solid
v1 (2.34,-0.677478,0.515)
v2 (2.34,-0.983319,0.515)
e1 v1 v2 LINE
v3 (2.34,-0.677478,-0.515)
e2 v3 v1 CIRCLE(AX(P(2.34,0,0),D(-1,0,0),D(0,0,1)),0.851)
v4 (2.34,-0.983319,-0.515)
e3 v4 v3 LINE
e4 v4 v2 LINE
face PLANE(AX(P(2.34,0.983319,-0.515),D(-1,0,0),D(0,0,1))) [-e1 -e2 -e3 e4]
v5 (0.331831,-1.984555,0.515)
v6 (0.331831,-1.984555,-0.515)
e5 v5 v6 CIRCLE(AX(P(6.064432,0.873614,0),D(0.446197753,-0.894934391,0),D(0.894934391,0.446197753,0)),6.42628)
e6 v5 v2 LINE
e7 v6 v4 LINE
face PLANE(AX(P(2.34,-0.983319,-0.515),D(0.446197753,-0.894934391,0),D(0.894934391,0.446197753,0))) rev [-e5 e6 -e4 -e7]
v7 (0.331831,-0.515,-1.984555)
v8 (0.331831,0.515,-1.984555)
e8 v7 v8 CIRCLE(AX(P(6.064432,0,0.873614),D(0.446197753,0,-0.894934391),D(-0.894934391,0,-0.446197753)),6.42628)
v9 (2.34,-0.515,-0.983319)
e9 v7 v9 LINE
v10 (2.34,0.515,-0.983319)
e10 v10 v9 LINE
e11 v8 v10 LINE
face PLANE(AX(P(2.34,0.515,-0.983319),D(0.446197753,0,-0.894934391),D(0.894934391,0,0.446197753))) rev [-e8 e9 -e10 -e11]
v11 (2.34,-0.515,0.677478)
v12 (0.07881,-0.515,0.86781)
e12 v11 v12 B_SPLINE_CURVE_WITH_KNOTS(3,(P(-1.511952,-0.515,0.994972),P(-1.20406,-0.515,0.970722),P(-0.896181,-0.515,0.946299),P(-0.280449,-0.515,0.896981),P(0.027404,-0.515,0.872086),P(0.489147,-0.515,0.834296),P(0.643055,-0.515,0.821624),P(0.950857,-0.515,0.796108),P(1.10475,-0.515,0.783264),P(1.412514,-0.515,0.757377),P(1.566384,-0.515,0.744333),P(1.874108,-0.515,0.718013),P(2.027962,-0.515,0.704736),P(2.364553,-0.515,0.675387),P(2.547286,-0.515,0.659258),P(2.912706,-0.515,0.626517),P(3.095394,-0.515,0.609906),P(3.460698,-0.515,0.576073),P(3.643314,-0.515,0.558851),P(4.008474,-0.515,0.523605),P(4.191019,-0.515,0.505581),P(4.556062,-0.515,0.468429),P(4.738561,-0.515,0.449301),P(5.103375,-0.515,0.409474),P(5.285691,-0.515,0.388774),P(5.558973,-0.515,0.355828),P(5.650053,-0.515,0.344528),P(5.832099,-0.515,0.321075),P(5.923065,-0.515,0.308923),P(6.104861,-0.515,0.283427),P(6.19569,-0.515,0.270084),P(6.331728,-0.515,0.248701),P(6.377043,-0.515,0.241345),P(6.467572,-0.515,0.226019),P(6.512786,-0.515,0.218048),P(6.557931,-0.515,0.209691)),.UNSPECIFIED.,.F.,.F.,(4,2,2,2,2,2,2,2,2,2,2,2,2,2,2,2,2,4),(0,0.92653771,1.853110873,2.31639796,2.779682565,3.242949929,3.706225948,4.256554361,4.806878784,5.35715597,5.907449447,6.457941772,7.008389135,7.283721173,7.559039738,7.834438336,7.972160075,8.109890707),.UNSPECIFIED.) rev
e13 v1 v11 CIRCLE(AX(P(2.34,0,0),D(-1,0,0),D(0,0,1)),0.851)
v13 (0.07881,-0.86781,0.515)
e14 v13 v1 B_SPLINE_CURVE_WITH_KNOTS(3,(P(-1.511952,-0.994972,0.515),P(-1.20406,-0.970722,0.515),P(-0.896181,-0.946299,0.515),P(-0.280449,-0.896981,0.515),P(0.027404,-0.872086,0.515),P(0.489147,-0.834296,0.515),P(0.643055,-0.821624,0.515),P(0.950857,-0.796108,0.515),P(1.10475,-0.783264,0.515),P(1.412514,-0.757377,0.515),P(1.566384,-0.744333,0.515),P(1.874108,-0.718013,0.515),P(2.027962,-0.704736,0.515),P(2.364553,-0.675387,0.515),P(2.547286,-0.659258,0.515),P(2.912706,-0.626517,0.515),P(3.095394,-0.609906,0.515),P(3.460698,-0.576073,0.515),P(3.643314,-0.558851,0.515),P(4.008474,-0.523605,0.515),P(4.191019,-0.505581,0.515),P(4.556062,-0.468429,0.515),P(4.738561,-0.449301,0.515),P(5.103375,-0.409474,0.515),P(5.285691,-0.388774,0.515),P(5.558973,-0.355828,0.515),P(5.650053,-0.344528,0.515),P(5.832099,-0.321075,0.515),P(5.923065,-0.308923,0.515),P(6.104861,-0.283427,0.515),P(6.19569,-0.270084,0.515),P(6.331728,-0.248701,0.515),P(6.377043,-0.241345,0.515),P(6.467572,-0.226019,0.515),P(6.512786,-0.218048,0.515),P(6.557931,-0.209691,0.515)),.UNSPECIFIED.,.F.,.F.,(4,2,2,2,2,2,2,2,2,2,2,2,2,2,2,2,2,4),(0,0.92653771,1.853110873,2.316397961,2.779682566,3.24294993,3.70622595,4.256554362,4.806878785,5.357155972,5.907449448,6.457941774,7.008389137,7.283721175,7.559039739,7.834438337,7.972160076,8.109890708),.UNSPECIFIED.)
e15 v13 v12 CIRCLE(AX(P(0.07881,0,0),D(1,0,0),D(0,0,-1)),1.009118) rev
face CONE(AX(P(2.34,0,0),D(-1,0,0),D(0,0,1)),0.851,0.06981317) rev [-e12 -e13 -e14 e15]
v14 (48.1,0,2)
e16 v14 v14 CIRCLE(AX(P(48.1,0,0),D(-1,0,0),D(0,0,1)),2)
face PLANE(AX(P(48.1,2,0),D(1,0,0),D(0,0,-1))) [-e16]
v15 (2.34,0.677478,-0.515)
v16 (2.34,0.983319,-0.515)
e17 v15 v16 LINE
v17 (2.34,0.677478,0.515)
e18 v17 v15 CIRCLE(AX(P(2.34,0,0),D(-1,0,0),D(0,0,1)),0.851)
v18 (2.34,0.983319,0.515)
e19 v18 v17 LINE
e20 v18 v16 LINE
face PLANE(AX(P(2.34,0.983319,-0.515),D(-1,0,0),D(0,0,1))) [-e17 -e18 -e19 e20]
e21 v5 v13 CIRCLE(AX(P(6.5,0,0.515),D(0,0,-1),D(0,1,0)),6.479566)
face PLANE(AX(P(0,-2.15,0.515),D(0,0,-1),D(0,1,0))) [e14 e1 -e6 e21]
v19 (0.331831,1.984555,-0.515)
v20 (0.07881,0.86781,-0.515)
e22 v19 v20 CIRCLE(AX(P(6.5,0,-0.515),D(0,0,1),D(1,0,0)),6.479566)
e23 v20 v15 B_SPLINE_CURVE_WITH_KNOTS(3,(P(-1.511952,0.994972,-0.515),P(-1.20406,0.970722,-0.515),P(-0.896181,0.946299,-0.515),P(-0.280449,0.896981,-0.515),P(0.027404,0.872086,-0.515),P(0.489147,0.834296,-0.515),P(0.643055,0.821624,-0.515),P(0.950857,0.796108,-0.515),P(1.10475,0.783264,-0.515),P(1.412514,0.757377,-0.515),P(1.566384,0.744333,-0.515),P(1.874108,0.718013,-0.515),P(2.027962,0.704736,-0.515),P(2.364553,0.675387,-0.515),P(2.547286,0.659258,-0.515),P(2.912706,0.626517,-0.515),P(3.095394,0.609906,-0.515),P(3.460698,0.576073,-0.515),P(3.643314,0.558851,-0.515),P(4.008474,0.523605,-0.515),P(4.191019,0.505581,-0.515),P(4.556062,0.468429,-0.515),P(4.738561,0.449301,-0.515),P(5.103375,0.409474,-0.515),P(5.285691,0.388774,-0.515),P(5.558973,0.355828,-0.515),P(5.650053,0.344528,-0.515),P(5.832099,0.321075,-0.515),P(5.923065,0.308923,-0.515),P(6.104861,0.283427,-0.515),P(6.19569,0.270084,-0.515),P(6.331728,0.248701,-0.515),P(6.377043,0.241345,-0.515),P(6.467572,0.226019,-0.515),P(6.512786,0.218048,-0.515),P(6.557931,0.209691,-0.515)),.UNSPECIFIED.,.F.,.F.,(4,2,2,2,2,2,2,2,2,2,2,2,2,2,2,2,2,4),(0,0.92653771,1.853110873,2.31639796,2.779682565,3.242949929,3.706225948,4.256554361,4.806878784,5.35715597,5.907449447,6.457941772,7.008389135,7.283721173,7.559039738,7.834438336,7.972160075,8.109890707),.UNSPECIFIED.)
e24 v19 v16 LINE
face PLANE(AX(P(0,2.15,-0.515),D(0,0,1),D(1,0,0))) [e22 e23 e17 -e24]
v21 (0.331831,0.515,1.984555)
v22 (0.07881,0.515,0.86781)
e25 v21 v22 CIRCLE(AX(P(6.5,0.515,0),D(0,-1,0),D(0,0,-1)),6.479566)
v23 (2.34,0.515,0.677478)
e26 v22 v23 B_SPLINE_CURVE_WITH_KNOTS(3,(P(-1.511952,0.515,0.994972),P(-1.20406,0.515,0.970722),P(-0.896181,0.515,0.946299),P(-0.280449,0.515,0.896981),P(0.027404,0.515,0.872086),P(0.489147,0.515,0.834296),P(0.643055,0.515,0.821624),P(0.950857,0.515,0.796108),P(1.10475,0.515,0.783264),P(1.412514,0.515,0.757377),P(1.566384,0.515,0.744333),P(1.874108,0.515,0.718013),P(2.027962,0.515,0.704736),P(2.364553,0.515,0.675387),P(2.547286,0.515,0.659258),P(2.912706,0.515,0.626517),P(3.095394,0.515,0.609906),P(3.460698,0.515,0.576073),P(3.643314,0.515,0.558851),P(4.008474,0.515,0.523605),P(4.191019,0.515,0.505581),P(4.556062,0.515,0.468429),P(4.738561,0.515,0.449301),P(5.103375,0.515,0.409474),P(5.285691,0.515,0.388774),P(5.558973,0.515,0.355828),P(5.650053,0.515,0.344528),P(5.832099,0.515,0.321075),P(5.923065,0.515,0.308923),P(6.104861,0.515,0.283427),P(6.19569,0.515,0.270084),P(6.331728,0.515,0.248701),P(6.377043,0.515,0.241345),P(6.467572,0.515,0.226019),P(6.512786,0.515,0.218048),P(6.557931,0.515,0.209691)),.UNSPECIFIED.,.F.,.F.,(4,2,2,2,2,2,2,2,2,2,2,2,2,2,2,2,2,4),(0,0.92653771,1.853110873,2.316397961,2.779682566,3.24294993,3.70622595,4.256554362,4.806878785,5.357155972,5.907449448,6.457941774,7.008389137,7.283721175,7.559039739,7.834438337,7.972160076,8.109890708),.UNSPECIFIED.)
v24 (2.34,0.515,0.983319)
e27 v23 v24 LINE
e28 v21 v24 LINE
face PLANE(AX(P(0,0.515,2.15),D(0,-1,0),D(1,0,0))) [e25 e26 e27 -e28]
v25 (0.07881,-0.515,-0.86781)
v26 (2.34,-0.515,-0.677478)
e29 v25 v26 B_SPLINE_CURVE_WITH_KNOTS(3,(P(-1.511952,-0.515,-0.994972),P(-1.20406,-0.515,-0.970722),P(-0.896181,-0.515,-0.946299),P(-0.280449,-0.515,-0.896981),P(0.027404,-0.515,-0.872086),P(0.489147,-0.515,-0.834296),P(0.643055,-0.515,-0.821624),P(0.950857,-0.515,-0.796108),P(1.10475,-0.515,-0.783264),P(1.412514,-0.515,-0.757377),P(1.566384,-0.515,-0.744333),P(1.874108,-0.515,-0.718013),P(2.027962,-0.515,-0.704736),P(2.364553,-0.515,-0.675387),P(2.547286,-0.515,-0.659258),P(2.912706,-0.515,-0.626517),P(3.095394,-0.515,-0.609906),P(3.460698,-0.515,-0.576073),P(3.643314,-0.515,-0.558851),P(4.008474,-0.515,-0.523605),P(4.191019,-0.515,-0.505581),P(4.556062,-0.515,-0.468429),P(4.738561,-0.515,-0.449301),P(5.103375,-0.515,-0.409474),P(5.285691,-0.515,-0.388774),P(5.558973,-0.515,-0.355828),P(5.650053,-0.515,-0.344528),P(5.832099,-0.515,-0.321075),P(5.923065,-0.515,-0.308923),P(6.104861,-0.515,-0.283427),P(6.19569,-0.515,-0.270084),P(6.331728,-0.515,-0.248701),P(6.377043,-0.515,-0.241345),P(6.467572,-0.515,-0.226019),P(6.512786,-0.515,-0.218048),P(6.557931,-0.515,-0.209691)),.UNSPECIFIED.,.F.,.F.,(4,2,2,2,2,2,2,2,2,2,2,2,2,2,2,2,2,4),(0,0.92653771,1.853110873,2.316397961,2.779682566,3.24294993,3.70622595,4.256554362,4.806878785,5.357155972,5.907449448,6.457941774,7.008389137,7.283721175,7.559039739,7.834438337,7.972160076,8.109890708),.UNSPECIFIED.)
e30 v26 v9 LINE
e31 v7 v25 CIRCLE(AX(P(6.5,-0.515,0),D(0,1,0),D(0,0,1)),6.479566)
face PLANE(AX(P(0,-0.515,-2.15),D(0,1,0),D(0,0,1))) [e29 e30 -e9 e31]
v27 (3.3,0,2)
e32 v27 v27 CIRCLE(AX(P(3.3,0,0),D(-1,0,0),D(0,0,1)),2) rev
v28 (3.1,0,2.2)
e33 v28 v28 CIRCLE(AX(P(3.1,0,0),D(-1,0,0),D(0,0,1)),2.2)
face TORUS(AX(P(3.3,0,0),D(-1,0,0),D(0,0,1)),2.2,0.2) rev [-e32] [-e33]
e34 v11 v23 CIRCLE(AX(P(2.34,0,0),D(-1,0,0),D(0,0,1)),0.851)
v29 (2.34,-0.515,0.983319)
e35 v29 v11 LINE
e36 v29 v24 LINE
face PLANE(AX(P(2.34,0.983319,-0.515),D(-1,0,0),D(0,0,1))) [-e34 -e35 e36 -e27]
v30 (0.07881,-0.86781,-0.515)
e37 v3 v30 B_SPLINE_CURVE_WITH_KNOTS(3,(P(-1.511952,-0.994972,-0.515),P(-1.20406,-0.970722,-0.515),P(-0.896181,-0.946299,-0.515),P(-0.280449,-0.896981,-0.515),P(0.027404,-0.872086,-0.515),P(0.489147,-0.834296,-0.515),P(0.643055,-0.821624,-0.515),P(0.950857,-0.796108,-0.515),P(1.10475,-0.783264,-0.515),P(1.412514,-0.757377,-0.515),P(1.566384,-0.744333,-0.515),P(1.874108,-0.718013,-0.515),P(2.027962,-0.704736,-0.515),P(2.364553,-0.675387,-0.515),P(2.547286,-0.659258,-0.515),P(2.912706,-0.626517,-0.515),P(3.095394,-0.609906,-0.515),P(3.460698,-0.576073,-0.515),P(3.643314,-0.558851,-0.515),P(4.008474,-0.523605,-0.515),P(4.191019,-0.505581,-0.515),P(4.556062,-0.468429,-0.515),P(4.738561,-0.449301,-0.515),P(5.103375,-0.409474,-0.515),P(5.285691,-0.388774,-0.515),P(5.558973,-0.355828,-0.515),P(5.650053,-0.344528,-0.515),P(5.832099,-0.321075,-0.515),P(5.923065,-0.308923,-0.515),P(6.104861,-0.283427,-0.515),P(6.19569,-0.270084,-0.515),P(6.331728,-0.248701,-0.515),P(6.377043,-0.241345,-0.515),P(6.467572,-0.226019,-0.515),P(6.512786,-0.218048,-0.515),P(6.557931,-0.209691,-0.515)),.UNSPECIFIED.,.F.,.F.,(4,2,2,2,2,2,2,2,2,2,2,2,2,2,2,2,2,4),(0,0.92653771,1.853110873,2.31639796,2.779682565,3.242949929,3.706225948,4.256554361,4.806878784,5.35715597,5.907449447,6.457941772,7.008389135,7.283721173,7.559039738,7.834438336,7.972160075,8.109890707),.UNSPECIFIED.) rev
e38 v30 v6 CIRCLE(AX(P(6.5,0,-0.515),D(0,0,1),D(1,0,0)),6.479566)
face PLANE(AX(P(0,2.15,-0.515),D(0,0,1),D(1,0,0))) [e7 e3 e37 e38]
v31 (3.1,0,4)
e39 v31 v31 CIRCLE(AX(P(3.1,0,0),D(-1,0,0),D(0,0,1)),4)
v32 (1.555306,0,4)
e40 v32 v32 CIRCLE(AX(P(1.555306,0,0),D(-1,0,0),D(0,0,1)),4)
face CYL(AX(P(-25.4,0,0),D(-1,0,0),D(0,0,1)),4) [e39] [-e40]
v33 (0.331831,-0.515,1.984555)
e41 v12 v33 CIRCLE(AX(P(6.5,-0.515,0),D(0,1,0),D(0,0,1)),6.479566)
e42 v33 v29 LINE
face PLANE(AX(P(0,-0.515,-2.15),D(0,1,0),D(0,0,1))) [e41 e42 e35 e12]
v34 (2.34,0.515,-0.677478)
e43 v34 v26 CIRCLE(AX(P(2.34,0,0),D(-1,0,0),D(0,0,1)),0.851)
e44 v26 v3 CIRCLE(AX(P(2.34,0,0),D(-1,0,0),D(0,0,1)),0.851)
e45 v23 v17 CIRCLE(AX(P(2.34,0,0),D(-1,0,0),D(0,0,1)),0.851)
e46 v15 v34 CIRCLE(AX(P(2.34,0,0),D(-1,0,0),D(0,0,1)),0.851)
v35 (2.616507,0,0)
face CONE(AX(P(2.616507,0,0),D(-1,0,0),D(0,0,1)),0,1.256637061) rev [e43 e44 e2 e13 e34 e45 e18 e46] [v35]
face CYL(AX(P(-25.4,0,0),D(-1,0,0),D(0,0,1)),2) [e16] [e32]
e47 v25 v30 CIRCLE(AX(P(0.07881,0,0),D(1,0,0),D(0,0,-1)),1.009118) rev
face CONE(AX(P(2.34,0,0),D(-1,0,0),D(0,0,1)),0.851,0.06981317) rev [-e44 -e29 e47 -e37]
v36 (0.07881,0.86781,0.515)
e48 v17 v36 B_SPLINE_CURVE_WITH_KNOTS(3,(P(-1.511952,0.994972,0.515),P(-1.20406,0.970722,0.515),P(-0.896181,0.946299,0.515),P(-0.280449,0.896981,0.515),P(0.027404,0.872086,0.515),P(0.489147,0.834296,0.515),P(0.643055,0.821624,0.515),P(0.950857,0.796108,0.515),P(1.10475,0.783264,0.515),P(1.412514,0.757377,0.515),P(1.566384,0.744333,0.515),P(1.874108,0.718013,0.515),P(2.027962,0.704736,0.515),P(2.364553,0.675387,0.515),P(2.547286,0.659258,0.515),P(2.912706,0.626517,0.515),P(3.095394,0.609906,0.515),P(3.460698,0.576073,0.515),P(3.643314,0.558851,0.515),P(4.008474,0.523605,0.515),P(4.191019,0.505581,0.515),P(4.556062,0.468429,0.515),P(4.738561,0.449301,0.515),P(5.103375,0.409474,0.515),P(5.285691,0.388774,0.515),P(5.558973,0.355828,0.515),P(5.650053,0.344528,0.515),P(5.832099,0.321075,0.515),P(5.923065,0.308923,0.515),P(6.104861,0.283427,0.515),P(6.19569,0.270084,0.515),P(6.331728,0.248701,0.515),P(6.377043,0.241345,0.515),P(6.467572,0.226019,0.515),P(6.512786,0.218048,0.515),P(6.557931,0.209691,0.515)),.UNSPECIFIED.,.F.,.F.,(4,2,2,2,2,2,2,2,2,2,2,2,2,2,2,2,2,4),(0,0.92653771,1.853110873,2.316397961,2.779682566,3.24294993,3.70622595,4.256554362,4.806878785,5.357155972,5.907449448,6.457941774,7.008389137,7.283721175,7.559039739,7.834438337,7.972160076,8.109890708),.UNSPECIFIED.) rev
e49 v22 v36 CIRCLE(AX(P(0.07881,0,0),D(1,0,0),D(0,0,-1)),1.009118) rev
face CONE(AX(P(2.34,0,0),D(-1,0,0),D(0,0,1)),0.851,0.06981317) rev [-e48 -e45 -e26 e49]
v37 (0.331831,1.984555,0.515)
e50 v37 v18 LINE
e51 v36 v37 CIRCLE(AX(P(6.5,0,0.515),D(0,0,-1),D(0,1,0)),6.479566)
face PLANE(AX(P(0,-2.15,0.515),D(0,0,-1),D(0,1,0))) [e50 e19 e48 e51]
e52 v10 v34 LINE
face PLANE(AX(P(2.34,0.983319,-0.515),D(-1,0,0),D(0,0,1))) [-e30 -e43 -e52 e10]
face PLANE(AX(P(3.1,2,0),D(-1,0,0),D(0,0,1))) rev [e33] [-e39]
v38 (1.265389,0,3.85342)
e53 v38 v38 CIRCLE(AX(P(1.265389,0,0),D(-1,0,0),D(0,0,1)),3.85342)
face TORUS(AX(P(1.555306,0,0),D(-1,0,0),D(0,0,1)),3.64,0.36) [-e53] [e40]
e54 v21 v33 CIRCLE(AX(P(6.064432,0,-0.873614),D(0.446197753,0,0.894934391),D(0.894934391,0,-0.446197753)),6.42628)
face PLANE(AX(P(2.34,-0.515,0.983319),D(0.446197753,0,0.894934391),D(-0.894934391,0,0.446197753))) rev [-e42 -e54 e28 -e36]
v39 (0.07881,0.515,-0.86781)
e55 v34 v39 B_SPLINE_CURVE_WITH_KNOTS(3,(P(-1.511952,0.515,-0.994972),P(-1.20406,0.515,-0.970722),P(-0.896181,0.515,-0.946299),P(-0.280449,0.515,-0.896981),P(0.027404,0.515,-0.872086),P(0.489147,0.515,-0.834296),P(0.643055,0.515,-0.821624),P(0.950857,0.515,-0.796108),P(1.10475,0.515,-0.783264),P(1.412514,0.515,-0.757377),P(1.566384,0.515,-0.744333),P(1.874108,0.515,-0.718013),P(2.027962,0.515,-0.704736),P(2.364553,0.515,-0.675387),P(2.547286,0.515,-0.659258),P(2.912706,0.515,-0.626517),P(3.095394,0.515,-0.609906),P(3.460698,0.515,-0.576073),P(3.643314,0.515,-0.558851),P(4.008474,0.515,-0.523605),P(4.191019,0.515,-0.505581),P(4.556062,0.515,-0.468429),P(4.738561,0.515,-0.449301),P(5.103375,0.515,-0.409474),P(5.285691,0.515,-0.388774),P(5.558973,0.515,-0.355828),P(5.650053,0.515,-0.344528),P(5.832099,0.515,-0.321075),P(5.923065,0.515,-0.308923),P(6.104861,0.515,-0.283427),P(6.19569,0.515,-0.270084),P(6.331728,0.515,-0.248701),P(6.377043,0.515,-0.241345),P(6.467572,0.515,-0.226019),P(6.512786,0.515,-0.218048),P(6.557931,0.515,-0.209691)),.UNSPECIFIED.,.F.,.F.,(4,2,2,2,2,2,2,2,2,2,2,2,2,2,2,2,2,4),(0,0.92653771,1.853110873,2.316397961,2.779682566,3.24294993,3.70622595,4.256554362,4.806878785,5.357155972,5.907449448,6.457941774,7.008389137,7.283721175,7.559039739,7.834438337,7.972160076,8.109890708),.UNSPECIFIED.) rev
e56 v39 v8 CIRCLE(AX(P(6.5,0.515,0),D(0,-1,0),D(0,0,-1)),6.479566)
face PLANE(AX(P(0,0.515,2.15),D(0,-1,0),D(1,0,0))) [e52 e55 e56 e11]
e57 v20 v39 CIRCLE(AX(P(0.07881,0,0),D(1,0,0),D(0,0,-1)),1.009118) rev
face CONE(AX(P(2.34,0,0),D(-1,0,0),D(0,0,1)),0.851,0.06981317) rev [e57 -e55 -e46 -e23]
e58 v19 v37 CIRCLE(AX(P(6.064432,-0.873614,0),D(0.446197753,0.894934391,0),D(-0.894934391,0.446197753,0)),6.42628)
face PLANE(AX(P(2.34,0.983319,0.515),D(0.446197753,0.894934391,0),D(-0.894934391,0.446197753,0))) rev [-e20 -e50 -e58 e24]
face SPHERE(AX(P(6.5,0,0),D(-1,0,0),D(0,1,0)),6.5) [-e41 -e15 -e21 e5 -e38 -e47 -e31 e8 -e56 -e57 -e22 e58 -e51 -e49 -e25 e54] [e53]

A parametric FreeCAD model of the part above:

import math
import FreeCAD as App
import Part
import Sketcher

V = App.Vector
Q = App.Units.Quantity


def edges_at(feature, points):
    """Names of the edges that pass closest to the given points."""
    edges = feature.Shape.Edges
    near = lambda p: min(range(len(edges)), key=lambda i: edges[i].distToShape(Part.Vertex(*p))[0])
    return sorted({f"Edge{near(p) + 1}" for p in points})


def add_polygon(sketch, points):
    """Adds a closed chain of lines whose ends are joined by coincident constraints."""
    first, n = sketch.GeometryCount, len(points)
    for a, b in zip(points, points[1:] + points[:1]):
        sketch.addGeometry(Part.LineSegment(App.Vector(*a, 0), App.Vector(*b, 0)), False)
    for i in range(n):
        sketch.addConstraint(Sketcher.Constraint("Coincident", first + i, 2, first + (i + 1) % n, 1))

doc = App.newDocument("Part")
params = doc.addObject("Spreadsheet::Sheet", "Params")
for row, (alias, value) in enumerate([
    ("sketch1_radius", "6.5 mm"),
    ("sketch1_width", "45 mm"),
    ("sketch1_height", "2 mm"),
    ("sketch1_radius2", "0.36 mm"),
    ("sketch1_width2", "48.1 mm"),
    ("revolution_angle", "360 deg"),
    ("fillet_radius", "0.2 mm"),
    ("sketch2_width", "4.3 mm"),
    ("sketch2_height", "1.03 mm"),
    ("sketch3_height", "1.03 mm"),
    ("groove_angle", "360 deg"),
], start=1):
    params.set(f"A{row}", alias)
    params.set(f"B{row}", "=" + value)
    params.setAlias(f"B{row}", alias)

body = doc.addObject("PartDesign::Body", "Body")

sketch1 = doc.addObject("Sketcher::SketchObject", "Sketch")
body.addObject(sketch1)
sketch1.AttachmentSupport = (doc.XY_Plane, [""])
sketch1.MapMode = "FlatFace"
sketch1.addGeometry(Part.LineSegment(V(3.1, 2, 0), V(3.1, 4, 0)), False)
sketch1.addGeometry(Part.LineSegment(V(3.1, 4, 0), V(1.56, 4, 0)), False)
sketch1.addGeometry(Part.ArcOfCircle(Part.Circle(V(1.56, 3.64, 0), V(0, 0, 1), 0.36), math.radians(90), math.radians(144)), False)
sketch1.addGeometry(Part.ArcOfCircle(Part.Circle(V(6.5, 0, 0), V(0, 0, 1), 6.5), math.radians(144), math.radians(180)), False)
sketch1.addGeometry(Part.LineSegment(V(0, 0, 0), V(48.1, 0, 0)), False)
sketch1.addGeometry(Part.LineSegment(V(48.1, 0, 0), V(48.1, 2, 0)), False)
sketch1.addGeometry(Part.LineSegment(V(48.1, 2, 0), V(3.1, 2, 0)), False)
sketch1.addConstraint(Sketcher.Constraint("Coincident", 0, 2, 1, 1))
sketch1.addConstraint(Sketcher.Constraint("Tangent", 1, 2, 2, 1))
sketch1.addConstraint(Sketcher.Constraint("Tangent", 2, 2, 3, 1))
sketch1.addConstraint(Sketcher.Constraint("Coincident", 3, 2, 4, 1))
sketch1.addConstraint(Sketcher.Constraint("Coincident", 4, 2, 5, 1))
sketch1.addConstraint(Sketcher.Constraint("Coincident", 5, 2, 6, 1))
sketch1.addConstraint(Sketcher.Constraint("Coincident", 6, 2, 0, 1))
sketch1.addConstraint(Sketcher.Constraint("Vertical", 0))
sketch1.addConstraint(Sketcher.Constraint("Horizontal", 1))
sketch1.addConstraint(Sketcher.Constraint("Horizontal", 4))
sketch1.addConstraint(Sketcher.Constraint("Vertical", 5))
sketch1.addConstraint(Sketcher.Constraint("Horizontal", 6))
sketch1.addConstraint(Sketcher.Constraint("Coincident", 3, 2, -1, 1))
sketch1.addConstraint(Sketcher.Constraint("PointOnObject", 3, 3, -1))
sketch1.addConstraint(Sketcher.Constraint("Equal", 0, 5))
sketch1.addConstraint(Sketcher.Constraint("Radius", 3, 6.5))
sketch1.addConstraint(Sketcher.Constraint("DistanceX", 6, 2, 6, 1, 45.0))
sketch1.addConstraint(Sketcher.Constraint("DistanceY", 0, 1, 0, 2, 2.0))
sketch1.addConstraint(Sketcher.Constraint("Radius", 2, 0.36))
sketch1.addConstraint(Sketcher.Constraint("DistanceX", 4, 1, 4, 2, 48.1))
sketch1.setExpression("Constraints[15]", "Params.sketch1_radius")
sketch1.setExpression("Constraints[16]", "Params.sketch1_width")
sketch1.setExpression("Constraints[17]", "Params.sketch1_height")
sketch1.setExpression("Constraints[18]", "Params.sketch1_radius2")
sketch1.setExpression("Constraints[19]", "Params.sketch1_width2")
revolution = doc.addObject("PartDesign::Revolution", "Revolution")
body.addObject(revolution)
revolution.Profile = sketch1
revolution.ReferenceAxis = (sketch1, ["H_Axis"])
revolution.setExpression("Angle", "Params.revolution_angle")
doc.recompute()

fillet = doc.addObject("PartDesign::Fillet", "Fillet")
body.addObject(fillet)
fillet.Base = (revolution, edges_at(revolution, [(3.1, 0, -2)]))
fillet.setExpression("Radius", "Params.fillet_radius")

sketch2 = doc.addObject("Sketcher::SketchObject", "Sketch001")
body.addObject(sketch2)
sketch2.AttachmentSupport = (doc.YZ_Plane, [""])
sketch2.MapMode = "FlatFace"
add_polygon(sketch2, [(-2.1, 0.5), (-2.1, -0.5), (2.1, -0.5), (2.1, 0.5)])
sketch2.addConstraint(Sketcher.Constraint("Vertical", 0))
sketch2.addConstraint(Sketcher.Constraint("Horizontal", 1))
sketch2.addConstraint(Sketcher.Constraint("Vertical", 2))
sketch2.addConstraint(Sketcher.Constraint("Horizontal", 3))
sketch2.addConstraint(Sketcher.Constraint("Symmetric", 0, 2, 2, 2, -1, 1))
sketch2.addConstraint(Sketcher.Constraint("DistanceX", 1, 1, 1, 2, 4.3))
sketch2.addConstraint(Sketcher.Constraint("DistanceY", 0, 2, 0, 1, 1.03))
sketch2.setExpression("Constraints[9]", "Params.sketch2_width")
sketch2.setExpression("Constraints[10]", "Params.sketch2_height")

sketch3 = doc.addObject("Sketcher::SketchObject", "Sketch002")
body.addObject(sketch3)
sketch3.AttachmentSupport = (doc.YZ_Plane, [""])
sketch3.MapMode = "FlatFace"
sketch3.AttachmentOffset = App.Placement(V(0, 0, 2.34), App.Rotation())
add_polygon(sketch3, [(-1, 0.5), (-1, -0.5), (1, -0.5), (1, 0.5)])
sketch3.addConstraint(Sketcher.Constraint("Vertical", 0))
sketch3.addConstraint(Sketcher.Constraint("Horizontal", 1))
sketch3.addConstraint(Sketcher.Constraint("Vertical", 2))
sketch3.addConstraint(Sketcher.Constraint("Horizontal", 3))
sketch3.addConstraint(Sketcher.Constraint("Symmetric", 0, 2, 2, 2, -1, 1))
sketch3.addConstraint(Sketcher.Constraint("DistanceY", 0, 2, 0, 1, 1.03))
sketch3.addConstraint(Sketcher.Constraint("DistanceX", 1, 1, 1, 2, 1.966638))
sketch3.setExpression("Constraints[9]", "Params.sketch3_height")

subtractiveloft = doc.addObject("PartDesign::SubtractiveLoft", "SubtractiveLoft")
body.addObject(subtractiveloft)
subtractiveloft.Profile = sketch2
subtractiveloft.Sections = [sketch3]
doc.recompute()

polarpattern = doc.addObject("PartDesign::PolarPattern", "PolarPattern")
body.addObject(polarpattern)
polarpattern.Originals = [subtractiveloft]
polarpattern.Axis = (doc.X_Axis, [""])
polarpattern.Angle = 90
polarpattern.Occurrences = 2
body.Tip = polarpattern

sketch4 = doc.addObject("Sketcher::SketchObject", "Sketch003")
body.addObject(sketch4)
sketch4.AttachmentSupport = (doc.XY_Plane, [""])
sketch4.MapMode = "FlatFace"
add_polygon(sketch4, [(0, 1), (0, 0), (2.6, 0), (2.3, 0.9)])
sketch4.addConstraint(Sketcher.Constraint("Vertical", 0))
sketch4.addConstraint(Sketcher.Constraint("Horizontal", 1))
sketch4.addConstraint(Sketcher.Constraint("Coincident", 0, 2, -1, 1))
sketch4.addConstraint(Sketcher.Constraint("Angle", 2, Q("108 deg")))
sketch4.addConstraint(Sketcher.Constraint("Angle", 3, Q("176 deg")))
sketch4.addConstraint(Sketcher.Constraint("DistanceX", -1, 1, 2, 2, 2.34))
sketch4.addConstraint(Sketcher.Constraint("DistanceY", -1, 1, 2, 2, 0.851))
groove = doc.addObject("PartDesign::Groove", "Groove")
body.addObject(groove)
groove.Profile = sketch4
groove.ReferenceAxis = (sketch4, ["H_Axis"])
groove.setExpression("Angle", "Params.groove_angle")

doc.recompute()
